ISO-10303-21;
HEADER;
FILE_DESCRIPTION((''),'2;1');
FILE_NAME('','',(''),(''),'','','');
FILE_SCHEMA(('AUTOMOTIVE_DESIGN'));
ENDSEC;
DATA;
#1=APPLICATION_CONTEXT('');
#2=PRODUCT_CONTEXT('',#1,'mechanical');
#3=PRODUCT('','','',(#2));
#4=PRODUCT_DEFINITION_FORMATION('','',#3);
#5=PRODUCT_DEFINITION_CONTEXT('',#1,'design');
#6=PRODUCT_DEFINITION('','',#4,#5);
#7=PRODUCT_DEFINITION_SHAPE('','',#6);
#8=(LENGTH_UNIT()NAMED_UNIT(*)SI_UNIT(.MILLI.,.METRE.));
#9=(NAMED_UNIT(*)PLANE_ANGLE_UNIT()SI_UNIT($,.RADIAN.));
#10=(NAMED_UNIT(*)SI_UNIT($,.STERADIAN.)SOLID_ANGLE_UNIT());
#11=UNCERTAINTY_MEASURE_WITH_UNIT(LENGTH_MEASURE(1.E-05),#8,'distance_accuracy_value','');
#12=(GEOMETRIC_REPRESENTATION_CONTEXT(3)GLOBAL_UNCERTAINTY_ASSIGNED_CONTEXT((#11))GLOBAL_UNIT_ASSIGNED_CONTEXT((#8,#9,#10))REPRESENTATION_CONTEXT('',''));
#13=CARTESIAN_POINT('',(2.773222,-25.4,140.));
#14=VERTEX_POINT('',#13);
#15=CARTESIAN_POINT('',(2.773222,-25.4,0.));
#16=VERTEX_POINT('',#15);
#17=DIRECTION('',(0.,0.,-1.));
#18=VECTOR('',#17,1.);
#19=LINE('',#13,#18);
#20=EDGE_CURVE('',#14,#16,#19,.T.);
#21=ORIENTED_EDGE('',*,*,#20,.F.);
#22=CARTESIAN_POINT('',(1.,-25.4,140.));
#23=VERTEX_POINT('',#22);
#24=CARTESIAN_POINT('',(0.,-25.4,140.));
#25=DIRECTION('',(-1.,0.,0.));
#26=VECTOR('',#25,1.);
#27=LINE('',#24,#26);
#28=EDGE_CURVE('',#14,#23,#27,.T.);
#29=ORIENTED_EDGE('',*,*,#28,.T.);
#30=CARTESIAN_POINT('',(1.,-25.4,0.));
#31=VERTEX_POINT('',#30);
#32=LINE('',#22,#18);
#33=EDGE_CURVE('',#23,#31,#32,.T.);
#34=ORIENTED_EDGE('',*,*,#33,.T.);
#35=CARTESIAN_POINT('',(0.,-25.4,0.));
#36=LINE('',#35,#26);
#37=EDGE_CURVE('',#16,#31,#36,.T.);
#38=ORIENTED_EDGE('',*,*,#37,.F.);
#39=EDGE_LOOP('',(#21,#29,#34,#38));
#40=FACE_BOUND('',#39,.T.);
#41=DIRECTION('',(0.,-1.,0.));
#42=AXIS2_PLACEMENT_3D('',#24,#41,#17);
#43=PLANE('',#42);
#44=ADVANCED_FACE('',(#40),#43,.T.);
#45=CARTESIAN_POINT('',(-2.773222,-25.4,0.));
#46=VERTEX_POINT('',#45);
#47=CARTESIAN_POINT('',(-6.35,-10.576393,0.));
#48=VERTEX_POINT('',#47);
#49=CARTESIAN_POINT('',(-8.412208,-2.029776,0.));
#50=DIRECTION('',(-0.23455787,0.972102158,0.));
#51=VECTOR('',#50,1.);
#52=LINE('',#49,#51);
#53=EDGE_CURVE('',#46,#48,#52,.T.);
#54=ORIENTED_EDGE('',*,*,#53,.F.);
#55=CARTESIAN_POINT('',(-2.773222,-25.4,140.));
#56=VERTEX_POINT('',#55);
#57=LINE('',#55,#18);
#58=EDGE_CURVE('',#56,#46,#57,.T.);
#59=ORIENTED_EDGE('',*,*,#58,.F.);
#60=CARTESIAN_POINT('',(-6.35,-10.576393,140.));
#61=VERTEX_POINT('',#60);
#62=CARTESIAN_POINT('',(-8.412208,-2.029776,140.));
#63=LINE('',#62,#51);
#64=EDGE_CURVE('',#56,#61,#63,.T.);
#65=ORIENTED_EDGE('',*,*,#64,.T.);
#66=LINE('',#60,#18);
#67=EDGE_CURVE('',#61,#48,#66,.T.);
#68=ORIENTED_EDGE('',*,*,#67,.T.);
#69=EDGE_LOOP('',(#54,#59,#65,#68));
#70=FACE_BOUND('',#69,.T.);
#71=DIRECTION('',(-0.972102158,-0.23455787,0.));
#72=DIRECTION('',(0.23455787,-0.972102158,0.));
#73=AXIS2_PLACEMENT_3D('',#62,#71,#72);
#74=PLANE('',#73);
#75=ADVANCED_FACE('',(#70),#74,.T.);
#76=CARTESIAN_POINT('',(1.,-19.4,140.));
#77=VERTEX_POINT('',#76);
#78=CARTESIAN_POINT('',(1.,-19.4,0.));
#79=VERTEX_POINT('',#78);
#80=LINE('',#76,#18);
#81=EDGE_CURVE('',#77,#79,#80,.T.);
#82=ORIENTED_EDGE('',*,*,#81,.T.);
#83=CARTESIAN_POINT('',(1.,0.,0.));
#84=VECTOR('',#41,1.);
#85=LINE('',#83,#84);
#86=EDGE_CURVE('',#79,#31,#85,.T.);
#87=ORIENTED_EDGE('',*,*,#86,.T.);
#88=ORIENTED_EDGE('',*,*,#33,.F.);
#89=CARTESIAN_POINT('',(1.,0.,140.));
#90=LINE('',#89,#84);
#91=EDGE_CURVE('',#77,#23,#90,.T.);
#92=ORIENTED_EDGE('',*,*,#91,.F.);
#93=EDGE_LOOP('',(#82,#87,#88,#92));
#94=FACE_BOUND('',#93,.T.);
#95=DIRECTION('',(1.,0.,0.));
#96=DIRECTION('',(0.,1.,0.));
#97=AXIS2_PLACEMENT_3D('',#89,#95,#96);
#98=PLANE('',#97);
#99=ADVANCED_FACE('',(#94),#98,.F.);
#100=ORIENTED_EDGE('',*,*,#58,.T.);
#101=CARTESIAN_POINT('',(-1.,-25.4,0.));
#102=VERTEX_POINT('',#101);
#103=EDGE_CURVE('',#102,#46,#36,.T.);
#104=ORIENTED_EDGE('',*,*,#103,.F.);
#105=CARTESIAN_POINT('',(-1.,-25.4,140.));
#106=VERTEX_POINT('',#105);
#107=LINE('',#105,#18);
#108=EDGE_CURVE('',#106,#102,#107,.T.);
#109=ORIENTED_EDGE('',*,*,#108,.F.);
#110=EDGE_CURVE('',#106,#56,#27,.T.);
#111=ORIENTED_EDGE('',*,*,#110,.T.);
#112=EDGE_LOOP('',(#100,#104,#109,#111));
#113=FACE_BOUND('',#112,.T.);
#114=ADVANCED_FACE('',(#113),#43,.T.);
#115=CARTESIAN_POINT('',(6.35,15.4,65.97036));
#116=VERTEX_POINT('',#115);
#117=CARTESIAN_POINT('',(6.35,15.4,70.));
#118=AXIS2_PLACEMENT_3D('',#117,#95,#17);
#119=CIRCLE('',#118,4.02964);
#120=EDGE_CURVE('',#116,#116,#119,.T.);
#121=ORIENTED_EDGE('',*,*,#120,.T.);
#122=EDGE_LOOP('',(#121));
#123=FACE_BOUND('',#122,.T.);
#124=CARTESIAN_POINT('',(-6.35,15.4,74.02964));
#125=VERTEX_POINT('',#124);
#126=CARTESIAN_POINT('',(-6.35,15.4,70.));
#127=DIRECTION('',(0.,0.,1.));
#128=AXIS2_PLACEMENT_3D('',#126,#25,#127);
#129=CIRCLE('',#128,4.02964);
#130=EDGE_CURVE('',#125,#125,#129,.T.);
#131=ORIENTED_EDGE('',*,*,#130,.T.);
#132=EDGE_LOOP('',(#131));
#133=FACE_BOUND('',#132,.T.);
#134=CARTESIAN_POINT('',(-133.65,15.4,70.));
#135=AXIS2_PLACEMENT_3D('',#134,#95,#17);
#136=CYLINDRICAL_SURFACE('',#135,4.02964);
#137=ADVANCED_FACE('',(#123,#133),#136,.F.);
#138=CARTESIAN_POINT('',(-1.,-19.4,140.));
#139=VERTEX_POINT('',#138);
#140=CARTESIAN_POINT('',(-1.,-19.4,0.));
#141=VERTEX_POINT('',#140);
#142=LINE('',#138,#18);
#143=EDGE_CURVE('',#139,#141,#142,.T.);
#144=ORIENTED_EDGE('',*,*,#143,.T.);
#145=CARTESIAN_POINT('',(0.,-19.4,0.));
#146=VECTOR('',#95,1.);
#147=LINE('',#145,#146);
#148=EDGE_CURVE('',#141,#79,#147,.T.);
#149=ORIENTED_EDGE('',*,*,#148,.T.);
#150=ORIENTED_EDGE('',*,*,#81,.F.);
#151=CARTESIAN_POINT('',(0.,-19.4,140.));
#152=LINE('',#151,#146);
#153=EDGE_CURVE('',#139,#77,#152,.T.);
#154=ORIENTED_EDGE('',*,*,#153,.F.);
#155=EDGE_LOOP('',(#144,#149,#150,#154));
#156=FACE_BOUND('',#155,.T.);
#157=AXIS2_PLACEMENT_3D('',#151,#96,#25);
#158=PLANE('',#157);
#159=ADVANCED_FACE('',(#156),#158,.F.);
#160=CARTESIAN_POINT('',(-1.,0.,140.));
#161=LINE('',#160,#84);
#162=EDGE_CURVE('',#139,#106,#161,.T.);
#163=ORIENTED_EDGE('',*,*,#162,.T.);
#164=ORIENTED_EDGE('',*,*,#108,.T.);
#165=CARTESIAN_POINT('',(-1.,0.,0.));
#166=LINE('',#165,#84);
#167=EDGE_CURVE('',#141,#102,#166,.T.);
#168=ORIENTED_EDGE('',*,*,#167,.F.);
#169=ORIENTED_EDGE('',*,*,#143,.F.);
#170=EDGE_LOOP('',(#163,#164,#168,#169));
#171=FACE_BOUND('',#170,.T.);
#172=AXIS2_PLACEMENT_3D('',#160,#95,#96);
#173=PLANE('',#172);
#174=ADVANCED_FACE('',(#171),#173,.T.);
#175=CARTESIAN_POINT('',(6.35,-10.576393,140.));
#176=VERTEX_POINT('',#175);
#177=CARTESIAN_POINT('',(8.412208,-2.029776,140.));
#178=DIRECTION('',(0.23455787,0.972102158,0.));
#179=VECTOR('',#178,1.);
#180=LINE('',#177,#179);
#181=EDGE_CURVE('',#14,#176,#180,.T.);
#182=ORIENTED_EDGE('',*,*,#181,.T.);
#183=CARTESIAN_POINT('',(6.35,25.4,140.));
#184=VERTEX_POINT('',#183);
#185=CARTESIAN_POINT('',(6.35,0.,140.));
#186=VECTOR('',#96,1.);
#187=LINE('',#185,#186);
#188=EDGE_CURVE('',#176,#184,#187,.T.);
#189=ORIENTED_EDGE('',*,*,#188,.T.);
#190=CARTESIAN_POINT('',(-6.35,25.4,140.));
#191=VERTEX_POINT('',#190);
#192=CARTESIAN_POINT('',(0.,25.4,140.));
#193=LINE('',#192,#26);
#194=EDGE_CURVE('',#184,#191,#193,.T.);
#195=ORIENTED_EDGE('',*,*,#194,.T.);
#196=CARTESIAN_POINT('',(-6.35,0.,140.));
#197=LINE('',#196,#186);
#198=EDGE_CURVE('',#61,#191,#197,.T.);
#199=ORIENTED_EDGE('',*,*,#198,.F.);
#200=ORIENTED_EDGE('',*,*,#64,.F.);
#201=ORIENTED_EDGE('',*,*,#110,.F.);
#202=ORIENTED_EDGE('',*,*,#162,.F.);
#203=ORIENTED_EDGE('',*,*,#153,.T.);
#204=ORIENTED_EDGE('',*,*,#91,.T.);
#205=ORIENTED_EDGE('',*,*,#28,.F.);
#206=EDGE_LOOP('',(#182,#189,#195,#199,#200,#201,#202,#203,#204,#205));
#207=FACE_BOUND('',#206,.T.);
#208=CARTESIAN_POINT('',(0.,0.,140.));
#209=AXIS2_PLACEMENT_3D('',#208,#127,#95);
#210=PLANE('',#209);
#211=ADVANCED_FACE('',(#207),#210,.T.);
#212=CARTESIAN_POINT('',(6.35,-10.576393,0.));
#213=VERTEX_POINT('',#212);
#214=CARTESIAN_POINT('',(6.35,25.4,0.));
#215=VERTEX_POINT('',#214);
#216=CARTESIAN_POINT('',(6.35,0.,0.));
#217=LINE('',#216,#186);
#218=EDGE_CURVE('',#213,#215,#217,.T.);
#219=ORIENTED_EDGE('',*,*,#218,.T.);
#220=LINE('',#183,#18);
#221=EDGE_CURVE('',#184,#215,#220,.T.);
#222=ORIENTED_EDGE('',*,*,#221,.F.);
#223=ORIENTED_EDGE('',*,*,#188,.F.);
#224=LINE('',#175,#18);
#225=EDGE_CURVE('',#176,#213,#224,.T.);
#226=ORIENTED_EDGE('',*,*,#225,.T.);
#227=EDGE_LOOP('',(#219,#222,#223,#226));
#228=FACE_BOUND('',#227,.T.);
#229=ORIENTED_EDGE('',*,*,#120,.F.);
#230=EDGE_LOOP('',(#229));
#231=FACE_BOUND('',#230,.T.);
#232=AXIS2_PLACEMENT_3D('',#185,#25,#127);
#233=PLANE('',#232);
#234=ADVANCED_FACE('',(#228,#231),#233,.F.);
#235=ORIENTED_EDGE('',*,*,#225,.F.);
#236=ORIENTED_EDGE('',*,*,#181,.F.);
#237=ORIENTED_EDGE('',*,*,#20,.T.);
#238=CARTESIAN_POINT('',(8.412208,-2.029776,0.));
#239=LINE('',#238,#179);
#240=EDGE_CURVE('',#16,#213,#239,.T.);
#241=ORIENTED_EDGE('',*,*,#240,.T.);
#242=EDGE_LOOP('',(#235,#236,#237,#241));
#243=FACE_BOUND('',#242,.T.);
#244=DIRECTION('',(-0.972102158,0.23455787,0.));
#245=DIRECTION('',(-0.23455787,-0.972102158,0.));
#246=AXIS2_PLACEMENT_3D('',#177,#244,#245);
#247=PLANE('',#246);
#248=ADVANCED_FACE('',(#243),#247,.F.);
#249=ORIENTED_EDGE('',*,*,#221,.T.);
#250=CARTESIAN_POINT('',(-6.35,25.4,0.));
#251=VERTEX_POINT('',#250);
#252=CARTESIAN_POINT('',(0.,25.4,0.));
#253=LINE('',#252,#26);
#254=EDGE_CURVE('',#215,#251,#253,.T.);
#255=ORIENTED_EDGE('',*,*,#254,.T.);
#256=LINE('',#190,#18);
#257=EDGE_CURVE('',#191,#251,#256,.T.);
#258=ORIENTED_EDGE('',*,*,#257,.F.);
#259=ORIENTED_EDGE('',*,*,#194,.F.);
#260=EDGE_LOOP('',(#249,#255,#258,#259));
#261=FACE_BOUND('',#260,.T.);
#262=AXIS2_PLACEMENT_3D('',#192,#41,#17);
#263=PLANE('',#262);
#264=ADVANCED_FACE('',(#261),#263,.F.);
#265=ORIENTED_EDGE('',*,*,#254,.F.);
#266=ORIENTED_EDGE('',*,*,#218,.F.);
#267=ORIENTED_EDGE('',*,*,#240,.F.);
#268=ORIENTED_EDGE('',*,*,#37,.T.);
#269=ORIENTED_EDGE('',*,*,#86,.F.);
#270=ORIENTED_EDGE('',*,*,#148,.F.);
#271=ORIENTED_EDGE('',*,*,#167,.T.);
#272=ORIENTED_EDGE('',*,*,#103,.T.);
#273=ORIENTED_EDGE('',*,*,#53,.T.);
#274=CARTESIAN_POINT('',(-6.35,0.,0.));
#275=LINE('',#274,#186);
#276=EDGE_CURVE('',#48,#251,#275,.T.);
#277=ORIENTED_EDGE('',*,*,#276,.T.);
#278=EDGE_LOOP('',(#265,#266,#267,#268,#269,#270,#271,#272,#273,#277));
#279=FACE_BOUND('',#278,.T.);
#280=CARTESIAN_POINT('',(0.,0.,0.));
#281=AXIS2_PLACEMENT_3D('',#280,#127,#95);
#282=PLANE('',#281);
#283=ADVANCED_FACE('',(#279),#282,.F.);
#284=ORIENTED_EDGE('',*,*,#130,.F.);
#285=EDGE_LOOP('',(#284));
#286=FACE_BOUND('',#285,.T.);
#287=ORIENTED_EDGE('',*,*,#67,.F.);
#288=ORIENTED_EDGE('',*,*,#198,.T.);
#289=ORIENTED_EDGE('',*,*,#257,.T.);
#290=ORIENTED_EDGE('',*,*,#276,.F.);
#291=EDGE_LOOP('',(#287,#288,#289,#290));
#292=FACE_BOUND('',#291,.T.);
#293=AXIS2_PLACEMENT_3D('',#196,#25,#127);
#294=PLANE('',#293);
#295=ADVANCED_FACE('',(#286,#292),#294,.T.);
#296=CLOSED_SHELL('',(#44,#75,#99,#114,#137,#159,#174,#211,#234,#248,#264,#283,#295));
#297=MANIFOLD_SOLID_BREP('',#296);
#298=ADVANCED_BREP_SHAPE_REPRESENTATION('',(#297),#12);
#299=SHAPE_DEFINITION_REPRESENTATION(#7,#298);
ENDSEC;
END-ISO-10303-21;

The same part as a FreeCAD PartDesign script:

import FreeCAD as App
import Part
import Sketcher
from FreeCAD import Vector
Q = App.Units.Quantity

doc = App.newDocument("Part")
body = doc.addObject("PartDesign::Body", "Body")

# Sketch on XY plane
sketch1 = body.newObject("Sketcher::SketchObject", "Sketch")
sketch1.AttachmentSupport = (doc.getObject("XY_Plane"), [""])
sketch1.MapMode = "FlatFace"
sketch1.addGeometry([
    Part.LineSegment(Vector(-2.8, -25.4, 0), Vector(-1, -25.4, 0)),  # 0
    Part.LineSegment(Vector(-1, -25.4, 0), Vector(-1, -19.4, 0)),  # 1
    Part.LineSegment(Vector(-1, -19.4, 0), Vector(1, -19.4, 0)),  # 2
    Part.LineSegment(Vector(1, -19.4, 0), Vector(1, -25.4, 0)),  # 3
    Part.LineSegment(Vector(1, -25.4, 0), Vector(2.8, -25.4, 0)),  # 4
    Part.LineSegment(Vector(2.8, -25.4, 0), Vector(6.3, -10.6, 0)),  # 5
    Part.LineSegment(Vector(6.3, -10.6, 0), Vector(6.3, 25.4, 0)),  # 6
    Part.LineSegment(Vector(6.3, 25.4, 0), Vector(-6.3, 25.4, 0)),  # 7
    Part.LineSegment(Vector(-6.3, 25.4, 0), Vector(-6.3, -10.6, 0)),  # 8
    Part.LineSegment(Vector(-6.3, -10.6, 0), Vector(-2.8, -25.4, 0)),  # 9
], False)
sketch1.addConstraint([
    Sketcher.Constraint("Coincident", 0, 2, 1, 1),
    Sketcher.Constraint("Coincident", 1, 2, 2, 1),
    Sketcher.Constraint("Coincident", 2, 2, 3, 1),
    Sketcher.Constraint("Coincident", 3, 2, 4, 1),
    Sketcher.Constraint("Coincident", 4, 2, 5, 1),
    Sketcher.Constraint("Coincident", 5, 2, 6, 1),
    Sketcher.Constraint("Coincident", 6, 2, 7, 1),
    Sketcher.Constraint("Coincident", 7, 2, 8, 1),
    Sketcher.Constraint("Coincident", 8, 2, 9, 1),
    Sketcher.Constraint("Coincident", 9, 2, 0, 1),
    Sketcher.Constraint("Horizontal", 0),
    Sketcher.Constraint("Vertical", 1),
    Sketcher.Constraint("Horizontal", 2),
    Sketcher.Constraint("Vertical", 3),
    Sketcher.Constraint("Horizontal", 4),
    Sketcher.Constraint("Vertical", 6),
    Sketcher.Constraint("Horizontal", 7),
    Sketcher.Constraint("Vertical", 8),
    Sketcher.Constraint("Symmetric", 0, 2, 3, 2, -2),
    Sketcher.Constraint("Symmetric", 5, 2, 8, 2, -2),
    Sketcher.Constraint("Equal", 0, 4),
    Sketcher.Constraint("DistanceX", 2, 1, 2, 2, Q("2 mm")),
    Sketcher.Constraint("DistanceY", 1, 1, 1, 2, Q("6 mm")),
    Sketcher.Constraint("DistanceX", 7, 2, 7, 1, Q("12.7 mm")),
    Sketcher.Constraint("DistanceY", 0, 2, -1, 1, Q("25.4 mm")),
    Sketcher.Constraint("DistanceY", -1, 1, 6, 2, Q("25.4 mm")),
    Sketcher.Constraint("Distance", 5, Q("15.249021 mm")),
    Sketcher.Constraint("DistanceX", 0, 1, 0, 2, Q("1.773222 mm")),
])
pad1 = body.newObject("PartDesign::Pad", "Pad")
pad1.Profile = sketch1
pad1.Length = 140

# Sketch on YZ plane
sketch2 = body.newObject("Sketcher::SketchObject", "Sketch001")
sketch2.AttachmentSupport = (doc.getObject("YZ_Plane"), [""])
sketch2.MapMode = "FlatFace"
sketch2.AttachmentOffset = App.Placement(Vector(0, 0, 6.35), App.Rotation())
sketch2.addGeometry(Part.Circle(Vector(15.4, 70, 0), Vector(0, 0, 1), 4), False)
sketch2.addConstraint([
    Sketcher.Constraint("DistanceY", -1, 1, 0, 3, Q("70 mm")),
    Sketcher.Constraint("DistanceX", -1, 1, 0, 3, Q("15.4 mm")),
    Sketcher.Constraint("Diameter", 0, Q("8.05928 mm")),
])
pocket1 = body.newObject("PartDesign::Pocket", "Pocket")
pocket1.Profile = sketch2
pocket1.Length = 140

doc.recompute()
